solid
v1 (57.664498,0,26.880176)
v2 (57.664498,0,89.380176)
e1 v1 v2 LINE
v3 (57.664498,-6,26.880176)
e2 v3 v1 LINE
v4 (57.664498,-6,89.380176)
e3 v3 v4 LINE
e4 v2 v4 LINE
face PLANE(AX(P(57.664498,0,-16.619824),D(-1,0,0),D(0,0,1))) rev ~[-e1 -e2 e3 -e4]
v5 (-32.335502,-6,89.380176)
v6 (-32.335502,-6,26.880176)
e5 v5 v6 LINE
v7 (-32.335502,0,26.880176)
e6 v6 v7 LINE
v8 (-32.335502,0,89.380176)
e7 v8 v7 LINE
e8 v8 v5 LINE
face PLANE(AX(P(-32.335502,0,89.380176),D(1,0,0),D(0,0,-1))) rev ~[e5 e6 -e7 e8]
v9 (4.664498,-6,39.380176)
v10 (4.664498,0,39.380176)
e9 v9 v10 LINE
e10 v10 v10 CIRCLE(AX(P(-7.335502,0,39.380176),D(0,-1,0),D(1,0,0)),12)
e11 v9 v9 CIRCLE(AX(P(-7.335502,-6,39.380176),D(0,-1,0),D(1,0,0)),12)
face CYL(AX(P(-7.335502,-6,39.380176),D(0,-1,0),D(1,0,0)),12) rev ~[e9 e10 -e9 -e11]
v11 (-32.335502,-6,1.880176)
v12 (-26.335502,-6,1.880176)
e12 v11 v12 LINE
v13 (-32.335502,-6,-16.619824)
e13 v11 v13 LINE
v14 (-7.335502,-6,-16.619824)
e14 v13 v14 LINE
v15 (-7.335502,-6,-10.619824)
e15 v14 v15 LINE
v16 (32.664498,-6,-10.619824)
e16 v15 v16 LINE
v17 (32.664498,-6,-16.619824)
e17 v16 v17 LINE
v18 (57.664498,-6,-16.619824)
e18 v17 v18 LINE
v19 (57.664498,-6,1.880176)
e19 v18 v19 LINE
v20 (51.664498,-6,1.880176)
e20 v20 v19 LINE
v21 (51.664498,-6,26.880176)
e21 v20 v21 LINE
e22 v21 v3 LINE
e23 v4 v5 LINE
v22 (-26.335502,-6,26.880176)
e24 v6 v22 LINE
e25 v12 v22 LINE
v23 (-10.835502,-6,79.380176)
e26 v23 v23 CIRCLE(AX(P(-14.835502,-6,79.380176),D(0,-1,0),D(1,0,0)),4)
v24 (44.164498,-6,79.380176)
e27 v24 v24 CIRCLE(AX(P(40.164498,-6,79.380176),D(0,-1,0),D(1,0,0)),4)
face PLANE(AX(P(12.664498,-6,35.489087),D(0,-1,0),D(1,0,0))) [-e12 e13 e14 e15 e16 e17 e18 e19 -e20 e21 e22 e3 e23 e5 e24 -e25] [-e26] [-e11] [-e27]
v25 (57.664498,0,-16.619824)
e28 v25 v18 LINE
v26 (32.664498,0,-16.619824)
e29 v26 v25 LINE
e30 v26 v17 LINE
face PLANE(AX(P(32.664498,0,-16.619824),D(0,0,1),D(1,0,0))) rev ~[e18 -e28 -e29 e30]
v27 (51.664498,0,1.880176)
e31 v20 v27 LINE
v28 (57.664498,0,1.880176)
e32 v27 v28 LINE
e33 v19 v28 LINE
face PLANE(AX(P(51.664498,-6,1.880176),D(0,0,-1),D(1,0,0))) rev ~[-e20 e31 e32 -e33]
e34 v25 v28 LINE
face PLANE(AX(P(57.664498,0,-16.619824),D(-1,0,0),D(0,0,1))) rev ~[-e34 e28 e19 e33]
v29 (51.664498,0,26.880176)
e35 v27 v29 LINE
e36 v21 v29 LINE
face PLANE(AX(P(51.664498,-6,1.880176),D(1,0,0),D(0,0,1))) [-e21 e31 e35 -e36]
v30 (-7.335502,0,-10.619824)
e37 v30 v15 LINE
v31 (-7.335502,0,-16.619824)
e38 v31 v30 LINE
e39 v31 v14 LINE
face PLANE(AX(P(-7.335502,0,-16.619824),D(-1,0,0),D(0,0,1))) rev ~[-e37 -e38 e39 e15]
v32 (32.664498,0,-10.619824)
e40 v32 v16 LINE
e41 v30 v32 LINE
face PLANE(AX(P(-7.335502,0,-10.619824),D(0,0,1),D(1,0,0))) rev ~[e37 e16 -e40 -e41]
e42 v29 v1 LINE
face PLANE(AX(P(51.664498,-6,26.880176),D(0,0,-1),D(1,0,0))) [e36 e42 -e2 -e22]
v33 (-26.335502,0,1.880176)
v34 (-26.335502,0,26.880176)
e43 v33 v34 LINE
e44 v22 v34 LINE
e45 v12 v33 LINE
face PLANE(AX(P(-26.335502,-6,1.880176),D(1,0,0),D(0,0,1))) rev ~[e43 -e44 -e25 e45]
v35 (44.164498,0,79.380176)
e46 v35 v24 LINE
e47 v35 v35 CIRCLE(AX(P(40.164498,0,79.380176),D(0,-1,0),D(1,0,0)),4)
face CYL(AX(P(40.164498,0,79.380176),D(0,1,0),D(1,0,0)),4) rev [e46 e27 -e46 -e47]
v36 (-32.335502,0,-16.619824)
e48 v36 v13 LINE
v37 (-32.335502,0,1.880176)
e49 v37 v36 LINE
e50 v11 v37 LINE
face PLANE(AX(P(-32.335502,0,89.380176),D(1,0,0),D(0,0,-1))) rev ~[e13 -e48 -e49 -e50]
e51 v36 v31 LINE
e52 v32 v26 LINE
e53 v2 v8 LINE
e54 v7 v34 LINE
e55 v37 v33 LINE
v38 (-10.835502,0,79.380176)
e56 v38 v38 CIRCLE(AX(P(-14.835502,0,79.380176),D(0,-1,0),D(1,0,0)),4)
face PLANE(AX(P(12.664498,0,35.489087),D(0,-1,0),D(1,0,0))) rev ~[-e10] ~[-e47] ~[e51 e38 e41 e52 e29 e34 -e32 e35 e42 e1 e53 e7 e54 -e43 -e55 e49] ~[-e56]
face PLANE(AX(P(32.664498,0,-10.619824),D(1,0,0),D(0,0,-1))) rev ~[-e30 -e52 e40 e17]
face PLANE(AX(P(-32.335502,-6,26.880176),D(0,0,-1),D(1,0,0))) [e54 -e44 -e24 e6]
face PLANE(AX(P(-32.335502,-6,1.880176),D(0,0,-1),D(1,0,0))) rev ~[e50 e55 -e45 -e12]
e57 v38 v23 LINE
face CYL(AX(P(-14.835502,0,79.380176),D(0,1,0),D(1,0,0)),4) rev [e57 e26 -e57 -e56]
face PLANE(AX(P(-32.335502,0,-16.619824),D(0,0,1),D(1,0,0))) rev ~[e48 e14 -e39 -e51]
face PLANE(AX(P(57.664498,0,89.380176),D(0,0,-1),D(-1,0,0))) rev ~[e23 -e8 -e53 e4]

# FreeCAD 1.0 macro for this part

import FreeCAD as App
import Part
import Sketcher
from FreeCAD import Vector


def add_polygon(sketch, points):
    """Adds a closed chain of lines whose ends are joined by coincident constraints."""
    first, n = sketch.GeometryCount, len(points)
    for a, b in zip(points, points[1:] + points[:1]):
        sketch.addGeometry(Part.LineSegment(App.Vector(*a, 0), App.Vector(*b, 0)), False)
    for i in range(n):
        sketch.addConstraint(Sketcher.Constraint("Coincident", first + i, 2, first + (i + 1) % n, 1))

doc = App.newDocument("Part")
body = doc.addObject("PartDesign::Body", "Body")

# Sketch on XZ plane
sketch1 = body.newObject("Sketcher::SketchObject", "Sketch")
sketch1.AttachmentSupport = (doc.getObject("XZ_Plane"), [""])
sketch1.MapMode = "FlatFace"
add_polygon(sketch1, [(57.7, 89.4), (-32.3, 89.4), (-32.3, -16.6), (-7.3, -16.6), (-7.3, -10.6), (32.7, -10.6), (32.7, -16.6), (57.7, -16.6)])  # lines 0-7
sketch1.addGeometry(Part.Circle(Vector(-14.8, 79.4, 0), Vector(0, 0, 1), 4), False)  # 8
sketch1.addGeometry(Part.Circle(Vector(40.2, 79.4, 0), Vector(0, 0, 1), 4), False)  # 9
sketch1.addConstraint([
    Sketcher.Constraint("Horizontal", 0),
    Sketcher.Constraint("Vertical", 1),
    Sketcher.Constraint("Horizontal", 2),
    Sketcher.Constraint("Vertical", 3),
    Sketcher.Constraint("Horizontal", 4),
    Sketcher.Constraint("Vertical", 5),
    Sketcher.Constraint("Horizontal", 6),
    Sketcher.Constraint("Vertical", 7),
    Sketcher.Constraint("Equal", 8, 9),
    Sketcher.Constraint("Horizontal", 8, 3, 9, 3),
    Sketcher.Constraint("Horizontal", 2, 2, 5, 2),
    Sketcher.Constraint("Equal", 2, 6),
    Sketcher.Constraint("Diameter", 8, 8.0),
    Sketcher.Constraint("DistanceX", 0, 2, 0, 1, 90.0),
    Sketcher.Constraint("DistanceX", 2, 1, 2, 2, 25.0),
    Sketcher.Constraint("DistanceY", 1, 2, 1, 1, 106.0),
    Sketcher.Constraint("DistanceY", 3, 1, 3, 2, 6.0),
    Sketcher.Constraint("DistanceX", 8, 3, 9, 3, 55.0),
    Sketcher.Constraint("DistanceY", 8, 3, 0, 2, 10.0),
    Sketcher.Constraint("DistanceX", 0, 2, 8, 3, 17.5),
    Sketcher.Constraint("DistanceX", -1, 1, 9, 3, 40.164498),
    Sketcher.Constraint("DistanceY", -1, 1, 8, 3, 79.380176),
])
pad1 = body.newObject("PartDesign::Pad", "Pad")
pad1.Profile = sketch1
pad1.Length = 6

# Sketch on XZ plane
sketch2 = body.newObject("Sketcher::SketchObject", "Sketch001")
sketch2.AttachmentSupport = (doc.getObject("XZ_Plane"), [""])
sketch2.MapMode = "FlatFace"
sketch2.AttachmentOffset = App.Placement(Vector(0, 0, 6), App.Rotation())
sketch2.addGeometry(Part.Circle(Vector(-7, 39, 0), Vector(0, 0, 1), 12), False)  # 0
add_polygon(sketch2, [(-32, 27), (-32, 2), (-26, 2), (-26, 27)])  # lines 1-4
add_polygon(sketch2, [(52, 27), (52, 2), (58, 2), (58, 27)])  # lines 5-8
sketch2.addConstraint([
    Sketcher.Constraint("Vertical", 1),
    Sketcher.Constraint("Horizontal", 2),
    Sketcher.Constraint("Vertical", 3),
    Sketcher.Constraint("Horizontal", 4),
    Sketcher.Constraint("Vertical", 5),
    Sketcher.Constraint("Horizontal", 6),
    Sketcher.Constraint("Vertical", 7),
    Sketcher.Constraint("Horizontal", 8),
    Sketcher.Constraint("Horizontal", 2, 2, 5, 2),
    Sketcher.Constraint("Horizontal", 4, 2, 7, 2),
    Sketcher.Constraint("Equal", 4, 6),
    Sketcher.Constraint("Diameter", 0, 24.0),
    Sketcher.Constraint("DistanceX", 2, 1, 2, 2, 6.0),
    Sketcher.Constraint("DistanceY", 1, 2, 1, 1, 25.0),
    Sketcher.Constraint("DistanceX", 1, 2, 0, 3, 25.0),
    Sketcher.Constraint("DistanceX", 0, 3, 5, 2, 59.0),
    Sketcher.Constraint("DistanceY", 1, 2, 0, 3, 37.5),
    Sketcher.Constraint("DistanceX", 1, 2, -1, 1, 32.335502),
    Sketcher.Constraint("DistanceY", -1, 1, 0, 3, 39.380176),
])
pocket1 = body.newObject("PartDesign::Pocket", "Pocket")
pocket1.Profile = sketch2
pocket1.Length = 25

doc.recompute()
